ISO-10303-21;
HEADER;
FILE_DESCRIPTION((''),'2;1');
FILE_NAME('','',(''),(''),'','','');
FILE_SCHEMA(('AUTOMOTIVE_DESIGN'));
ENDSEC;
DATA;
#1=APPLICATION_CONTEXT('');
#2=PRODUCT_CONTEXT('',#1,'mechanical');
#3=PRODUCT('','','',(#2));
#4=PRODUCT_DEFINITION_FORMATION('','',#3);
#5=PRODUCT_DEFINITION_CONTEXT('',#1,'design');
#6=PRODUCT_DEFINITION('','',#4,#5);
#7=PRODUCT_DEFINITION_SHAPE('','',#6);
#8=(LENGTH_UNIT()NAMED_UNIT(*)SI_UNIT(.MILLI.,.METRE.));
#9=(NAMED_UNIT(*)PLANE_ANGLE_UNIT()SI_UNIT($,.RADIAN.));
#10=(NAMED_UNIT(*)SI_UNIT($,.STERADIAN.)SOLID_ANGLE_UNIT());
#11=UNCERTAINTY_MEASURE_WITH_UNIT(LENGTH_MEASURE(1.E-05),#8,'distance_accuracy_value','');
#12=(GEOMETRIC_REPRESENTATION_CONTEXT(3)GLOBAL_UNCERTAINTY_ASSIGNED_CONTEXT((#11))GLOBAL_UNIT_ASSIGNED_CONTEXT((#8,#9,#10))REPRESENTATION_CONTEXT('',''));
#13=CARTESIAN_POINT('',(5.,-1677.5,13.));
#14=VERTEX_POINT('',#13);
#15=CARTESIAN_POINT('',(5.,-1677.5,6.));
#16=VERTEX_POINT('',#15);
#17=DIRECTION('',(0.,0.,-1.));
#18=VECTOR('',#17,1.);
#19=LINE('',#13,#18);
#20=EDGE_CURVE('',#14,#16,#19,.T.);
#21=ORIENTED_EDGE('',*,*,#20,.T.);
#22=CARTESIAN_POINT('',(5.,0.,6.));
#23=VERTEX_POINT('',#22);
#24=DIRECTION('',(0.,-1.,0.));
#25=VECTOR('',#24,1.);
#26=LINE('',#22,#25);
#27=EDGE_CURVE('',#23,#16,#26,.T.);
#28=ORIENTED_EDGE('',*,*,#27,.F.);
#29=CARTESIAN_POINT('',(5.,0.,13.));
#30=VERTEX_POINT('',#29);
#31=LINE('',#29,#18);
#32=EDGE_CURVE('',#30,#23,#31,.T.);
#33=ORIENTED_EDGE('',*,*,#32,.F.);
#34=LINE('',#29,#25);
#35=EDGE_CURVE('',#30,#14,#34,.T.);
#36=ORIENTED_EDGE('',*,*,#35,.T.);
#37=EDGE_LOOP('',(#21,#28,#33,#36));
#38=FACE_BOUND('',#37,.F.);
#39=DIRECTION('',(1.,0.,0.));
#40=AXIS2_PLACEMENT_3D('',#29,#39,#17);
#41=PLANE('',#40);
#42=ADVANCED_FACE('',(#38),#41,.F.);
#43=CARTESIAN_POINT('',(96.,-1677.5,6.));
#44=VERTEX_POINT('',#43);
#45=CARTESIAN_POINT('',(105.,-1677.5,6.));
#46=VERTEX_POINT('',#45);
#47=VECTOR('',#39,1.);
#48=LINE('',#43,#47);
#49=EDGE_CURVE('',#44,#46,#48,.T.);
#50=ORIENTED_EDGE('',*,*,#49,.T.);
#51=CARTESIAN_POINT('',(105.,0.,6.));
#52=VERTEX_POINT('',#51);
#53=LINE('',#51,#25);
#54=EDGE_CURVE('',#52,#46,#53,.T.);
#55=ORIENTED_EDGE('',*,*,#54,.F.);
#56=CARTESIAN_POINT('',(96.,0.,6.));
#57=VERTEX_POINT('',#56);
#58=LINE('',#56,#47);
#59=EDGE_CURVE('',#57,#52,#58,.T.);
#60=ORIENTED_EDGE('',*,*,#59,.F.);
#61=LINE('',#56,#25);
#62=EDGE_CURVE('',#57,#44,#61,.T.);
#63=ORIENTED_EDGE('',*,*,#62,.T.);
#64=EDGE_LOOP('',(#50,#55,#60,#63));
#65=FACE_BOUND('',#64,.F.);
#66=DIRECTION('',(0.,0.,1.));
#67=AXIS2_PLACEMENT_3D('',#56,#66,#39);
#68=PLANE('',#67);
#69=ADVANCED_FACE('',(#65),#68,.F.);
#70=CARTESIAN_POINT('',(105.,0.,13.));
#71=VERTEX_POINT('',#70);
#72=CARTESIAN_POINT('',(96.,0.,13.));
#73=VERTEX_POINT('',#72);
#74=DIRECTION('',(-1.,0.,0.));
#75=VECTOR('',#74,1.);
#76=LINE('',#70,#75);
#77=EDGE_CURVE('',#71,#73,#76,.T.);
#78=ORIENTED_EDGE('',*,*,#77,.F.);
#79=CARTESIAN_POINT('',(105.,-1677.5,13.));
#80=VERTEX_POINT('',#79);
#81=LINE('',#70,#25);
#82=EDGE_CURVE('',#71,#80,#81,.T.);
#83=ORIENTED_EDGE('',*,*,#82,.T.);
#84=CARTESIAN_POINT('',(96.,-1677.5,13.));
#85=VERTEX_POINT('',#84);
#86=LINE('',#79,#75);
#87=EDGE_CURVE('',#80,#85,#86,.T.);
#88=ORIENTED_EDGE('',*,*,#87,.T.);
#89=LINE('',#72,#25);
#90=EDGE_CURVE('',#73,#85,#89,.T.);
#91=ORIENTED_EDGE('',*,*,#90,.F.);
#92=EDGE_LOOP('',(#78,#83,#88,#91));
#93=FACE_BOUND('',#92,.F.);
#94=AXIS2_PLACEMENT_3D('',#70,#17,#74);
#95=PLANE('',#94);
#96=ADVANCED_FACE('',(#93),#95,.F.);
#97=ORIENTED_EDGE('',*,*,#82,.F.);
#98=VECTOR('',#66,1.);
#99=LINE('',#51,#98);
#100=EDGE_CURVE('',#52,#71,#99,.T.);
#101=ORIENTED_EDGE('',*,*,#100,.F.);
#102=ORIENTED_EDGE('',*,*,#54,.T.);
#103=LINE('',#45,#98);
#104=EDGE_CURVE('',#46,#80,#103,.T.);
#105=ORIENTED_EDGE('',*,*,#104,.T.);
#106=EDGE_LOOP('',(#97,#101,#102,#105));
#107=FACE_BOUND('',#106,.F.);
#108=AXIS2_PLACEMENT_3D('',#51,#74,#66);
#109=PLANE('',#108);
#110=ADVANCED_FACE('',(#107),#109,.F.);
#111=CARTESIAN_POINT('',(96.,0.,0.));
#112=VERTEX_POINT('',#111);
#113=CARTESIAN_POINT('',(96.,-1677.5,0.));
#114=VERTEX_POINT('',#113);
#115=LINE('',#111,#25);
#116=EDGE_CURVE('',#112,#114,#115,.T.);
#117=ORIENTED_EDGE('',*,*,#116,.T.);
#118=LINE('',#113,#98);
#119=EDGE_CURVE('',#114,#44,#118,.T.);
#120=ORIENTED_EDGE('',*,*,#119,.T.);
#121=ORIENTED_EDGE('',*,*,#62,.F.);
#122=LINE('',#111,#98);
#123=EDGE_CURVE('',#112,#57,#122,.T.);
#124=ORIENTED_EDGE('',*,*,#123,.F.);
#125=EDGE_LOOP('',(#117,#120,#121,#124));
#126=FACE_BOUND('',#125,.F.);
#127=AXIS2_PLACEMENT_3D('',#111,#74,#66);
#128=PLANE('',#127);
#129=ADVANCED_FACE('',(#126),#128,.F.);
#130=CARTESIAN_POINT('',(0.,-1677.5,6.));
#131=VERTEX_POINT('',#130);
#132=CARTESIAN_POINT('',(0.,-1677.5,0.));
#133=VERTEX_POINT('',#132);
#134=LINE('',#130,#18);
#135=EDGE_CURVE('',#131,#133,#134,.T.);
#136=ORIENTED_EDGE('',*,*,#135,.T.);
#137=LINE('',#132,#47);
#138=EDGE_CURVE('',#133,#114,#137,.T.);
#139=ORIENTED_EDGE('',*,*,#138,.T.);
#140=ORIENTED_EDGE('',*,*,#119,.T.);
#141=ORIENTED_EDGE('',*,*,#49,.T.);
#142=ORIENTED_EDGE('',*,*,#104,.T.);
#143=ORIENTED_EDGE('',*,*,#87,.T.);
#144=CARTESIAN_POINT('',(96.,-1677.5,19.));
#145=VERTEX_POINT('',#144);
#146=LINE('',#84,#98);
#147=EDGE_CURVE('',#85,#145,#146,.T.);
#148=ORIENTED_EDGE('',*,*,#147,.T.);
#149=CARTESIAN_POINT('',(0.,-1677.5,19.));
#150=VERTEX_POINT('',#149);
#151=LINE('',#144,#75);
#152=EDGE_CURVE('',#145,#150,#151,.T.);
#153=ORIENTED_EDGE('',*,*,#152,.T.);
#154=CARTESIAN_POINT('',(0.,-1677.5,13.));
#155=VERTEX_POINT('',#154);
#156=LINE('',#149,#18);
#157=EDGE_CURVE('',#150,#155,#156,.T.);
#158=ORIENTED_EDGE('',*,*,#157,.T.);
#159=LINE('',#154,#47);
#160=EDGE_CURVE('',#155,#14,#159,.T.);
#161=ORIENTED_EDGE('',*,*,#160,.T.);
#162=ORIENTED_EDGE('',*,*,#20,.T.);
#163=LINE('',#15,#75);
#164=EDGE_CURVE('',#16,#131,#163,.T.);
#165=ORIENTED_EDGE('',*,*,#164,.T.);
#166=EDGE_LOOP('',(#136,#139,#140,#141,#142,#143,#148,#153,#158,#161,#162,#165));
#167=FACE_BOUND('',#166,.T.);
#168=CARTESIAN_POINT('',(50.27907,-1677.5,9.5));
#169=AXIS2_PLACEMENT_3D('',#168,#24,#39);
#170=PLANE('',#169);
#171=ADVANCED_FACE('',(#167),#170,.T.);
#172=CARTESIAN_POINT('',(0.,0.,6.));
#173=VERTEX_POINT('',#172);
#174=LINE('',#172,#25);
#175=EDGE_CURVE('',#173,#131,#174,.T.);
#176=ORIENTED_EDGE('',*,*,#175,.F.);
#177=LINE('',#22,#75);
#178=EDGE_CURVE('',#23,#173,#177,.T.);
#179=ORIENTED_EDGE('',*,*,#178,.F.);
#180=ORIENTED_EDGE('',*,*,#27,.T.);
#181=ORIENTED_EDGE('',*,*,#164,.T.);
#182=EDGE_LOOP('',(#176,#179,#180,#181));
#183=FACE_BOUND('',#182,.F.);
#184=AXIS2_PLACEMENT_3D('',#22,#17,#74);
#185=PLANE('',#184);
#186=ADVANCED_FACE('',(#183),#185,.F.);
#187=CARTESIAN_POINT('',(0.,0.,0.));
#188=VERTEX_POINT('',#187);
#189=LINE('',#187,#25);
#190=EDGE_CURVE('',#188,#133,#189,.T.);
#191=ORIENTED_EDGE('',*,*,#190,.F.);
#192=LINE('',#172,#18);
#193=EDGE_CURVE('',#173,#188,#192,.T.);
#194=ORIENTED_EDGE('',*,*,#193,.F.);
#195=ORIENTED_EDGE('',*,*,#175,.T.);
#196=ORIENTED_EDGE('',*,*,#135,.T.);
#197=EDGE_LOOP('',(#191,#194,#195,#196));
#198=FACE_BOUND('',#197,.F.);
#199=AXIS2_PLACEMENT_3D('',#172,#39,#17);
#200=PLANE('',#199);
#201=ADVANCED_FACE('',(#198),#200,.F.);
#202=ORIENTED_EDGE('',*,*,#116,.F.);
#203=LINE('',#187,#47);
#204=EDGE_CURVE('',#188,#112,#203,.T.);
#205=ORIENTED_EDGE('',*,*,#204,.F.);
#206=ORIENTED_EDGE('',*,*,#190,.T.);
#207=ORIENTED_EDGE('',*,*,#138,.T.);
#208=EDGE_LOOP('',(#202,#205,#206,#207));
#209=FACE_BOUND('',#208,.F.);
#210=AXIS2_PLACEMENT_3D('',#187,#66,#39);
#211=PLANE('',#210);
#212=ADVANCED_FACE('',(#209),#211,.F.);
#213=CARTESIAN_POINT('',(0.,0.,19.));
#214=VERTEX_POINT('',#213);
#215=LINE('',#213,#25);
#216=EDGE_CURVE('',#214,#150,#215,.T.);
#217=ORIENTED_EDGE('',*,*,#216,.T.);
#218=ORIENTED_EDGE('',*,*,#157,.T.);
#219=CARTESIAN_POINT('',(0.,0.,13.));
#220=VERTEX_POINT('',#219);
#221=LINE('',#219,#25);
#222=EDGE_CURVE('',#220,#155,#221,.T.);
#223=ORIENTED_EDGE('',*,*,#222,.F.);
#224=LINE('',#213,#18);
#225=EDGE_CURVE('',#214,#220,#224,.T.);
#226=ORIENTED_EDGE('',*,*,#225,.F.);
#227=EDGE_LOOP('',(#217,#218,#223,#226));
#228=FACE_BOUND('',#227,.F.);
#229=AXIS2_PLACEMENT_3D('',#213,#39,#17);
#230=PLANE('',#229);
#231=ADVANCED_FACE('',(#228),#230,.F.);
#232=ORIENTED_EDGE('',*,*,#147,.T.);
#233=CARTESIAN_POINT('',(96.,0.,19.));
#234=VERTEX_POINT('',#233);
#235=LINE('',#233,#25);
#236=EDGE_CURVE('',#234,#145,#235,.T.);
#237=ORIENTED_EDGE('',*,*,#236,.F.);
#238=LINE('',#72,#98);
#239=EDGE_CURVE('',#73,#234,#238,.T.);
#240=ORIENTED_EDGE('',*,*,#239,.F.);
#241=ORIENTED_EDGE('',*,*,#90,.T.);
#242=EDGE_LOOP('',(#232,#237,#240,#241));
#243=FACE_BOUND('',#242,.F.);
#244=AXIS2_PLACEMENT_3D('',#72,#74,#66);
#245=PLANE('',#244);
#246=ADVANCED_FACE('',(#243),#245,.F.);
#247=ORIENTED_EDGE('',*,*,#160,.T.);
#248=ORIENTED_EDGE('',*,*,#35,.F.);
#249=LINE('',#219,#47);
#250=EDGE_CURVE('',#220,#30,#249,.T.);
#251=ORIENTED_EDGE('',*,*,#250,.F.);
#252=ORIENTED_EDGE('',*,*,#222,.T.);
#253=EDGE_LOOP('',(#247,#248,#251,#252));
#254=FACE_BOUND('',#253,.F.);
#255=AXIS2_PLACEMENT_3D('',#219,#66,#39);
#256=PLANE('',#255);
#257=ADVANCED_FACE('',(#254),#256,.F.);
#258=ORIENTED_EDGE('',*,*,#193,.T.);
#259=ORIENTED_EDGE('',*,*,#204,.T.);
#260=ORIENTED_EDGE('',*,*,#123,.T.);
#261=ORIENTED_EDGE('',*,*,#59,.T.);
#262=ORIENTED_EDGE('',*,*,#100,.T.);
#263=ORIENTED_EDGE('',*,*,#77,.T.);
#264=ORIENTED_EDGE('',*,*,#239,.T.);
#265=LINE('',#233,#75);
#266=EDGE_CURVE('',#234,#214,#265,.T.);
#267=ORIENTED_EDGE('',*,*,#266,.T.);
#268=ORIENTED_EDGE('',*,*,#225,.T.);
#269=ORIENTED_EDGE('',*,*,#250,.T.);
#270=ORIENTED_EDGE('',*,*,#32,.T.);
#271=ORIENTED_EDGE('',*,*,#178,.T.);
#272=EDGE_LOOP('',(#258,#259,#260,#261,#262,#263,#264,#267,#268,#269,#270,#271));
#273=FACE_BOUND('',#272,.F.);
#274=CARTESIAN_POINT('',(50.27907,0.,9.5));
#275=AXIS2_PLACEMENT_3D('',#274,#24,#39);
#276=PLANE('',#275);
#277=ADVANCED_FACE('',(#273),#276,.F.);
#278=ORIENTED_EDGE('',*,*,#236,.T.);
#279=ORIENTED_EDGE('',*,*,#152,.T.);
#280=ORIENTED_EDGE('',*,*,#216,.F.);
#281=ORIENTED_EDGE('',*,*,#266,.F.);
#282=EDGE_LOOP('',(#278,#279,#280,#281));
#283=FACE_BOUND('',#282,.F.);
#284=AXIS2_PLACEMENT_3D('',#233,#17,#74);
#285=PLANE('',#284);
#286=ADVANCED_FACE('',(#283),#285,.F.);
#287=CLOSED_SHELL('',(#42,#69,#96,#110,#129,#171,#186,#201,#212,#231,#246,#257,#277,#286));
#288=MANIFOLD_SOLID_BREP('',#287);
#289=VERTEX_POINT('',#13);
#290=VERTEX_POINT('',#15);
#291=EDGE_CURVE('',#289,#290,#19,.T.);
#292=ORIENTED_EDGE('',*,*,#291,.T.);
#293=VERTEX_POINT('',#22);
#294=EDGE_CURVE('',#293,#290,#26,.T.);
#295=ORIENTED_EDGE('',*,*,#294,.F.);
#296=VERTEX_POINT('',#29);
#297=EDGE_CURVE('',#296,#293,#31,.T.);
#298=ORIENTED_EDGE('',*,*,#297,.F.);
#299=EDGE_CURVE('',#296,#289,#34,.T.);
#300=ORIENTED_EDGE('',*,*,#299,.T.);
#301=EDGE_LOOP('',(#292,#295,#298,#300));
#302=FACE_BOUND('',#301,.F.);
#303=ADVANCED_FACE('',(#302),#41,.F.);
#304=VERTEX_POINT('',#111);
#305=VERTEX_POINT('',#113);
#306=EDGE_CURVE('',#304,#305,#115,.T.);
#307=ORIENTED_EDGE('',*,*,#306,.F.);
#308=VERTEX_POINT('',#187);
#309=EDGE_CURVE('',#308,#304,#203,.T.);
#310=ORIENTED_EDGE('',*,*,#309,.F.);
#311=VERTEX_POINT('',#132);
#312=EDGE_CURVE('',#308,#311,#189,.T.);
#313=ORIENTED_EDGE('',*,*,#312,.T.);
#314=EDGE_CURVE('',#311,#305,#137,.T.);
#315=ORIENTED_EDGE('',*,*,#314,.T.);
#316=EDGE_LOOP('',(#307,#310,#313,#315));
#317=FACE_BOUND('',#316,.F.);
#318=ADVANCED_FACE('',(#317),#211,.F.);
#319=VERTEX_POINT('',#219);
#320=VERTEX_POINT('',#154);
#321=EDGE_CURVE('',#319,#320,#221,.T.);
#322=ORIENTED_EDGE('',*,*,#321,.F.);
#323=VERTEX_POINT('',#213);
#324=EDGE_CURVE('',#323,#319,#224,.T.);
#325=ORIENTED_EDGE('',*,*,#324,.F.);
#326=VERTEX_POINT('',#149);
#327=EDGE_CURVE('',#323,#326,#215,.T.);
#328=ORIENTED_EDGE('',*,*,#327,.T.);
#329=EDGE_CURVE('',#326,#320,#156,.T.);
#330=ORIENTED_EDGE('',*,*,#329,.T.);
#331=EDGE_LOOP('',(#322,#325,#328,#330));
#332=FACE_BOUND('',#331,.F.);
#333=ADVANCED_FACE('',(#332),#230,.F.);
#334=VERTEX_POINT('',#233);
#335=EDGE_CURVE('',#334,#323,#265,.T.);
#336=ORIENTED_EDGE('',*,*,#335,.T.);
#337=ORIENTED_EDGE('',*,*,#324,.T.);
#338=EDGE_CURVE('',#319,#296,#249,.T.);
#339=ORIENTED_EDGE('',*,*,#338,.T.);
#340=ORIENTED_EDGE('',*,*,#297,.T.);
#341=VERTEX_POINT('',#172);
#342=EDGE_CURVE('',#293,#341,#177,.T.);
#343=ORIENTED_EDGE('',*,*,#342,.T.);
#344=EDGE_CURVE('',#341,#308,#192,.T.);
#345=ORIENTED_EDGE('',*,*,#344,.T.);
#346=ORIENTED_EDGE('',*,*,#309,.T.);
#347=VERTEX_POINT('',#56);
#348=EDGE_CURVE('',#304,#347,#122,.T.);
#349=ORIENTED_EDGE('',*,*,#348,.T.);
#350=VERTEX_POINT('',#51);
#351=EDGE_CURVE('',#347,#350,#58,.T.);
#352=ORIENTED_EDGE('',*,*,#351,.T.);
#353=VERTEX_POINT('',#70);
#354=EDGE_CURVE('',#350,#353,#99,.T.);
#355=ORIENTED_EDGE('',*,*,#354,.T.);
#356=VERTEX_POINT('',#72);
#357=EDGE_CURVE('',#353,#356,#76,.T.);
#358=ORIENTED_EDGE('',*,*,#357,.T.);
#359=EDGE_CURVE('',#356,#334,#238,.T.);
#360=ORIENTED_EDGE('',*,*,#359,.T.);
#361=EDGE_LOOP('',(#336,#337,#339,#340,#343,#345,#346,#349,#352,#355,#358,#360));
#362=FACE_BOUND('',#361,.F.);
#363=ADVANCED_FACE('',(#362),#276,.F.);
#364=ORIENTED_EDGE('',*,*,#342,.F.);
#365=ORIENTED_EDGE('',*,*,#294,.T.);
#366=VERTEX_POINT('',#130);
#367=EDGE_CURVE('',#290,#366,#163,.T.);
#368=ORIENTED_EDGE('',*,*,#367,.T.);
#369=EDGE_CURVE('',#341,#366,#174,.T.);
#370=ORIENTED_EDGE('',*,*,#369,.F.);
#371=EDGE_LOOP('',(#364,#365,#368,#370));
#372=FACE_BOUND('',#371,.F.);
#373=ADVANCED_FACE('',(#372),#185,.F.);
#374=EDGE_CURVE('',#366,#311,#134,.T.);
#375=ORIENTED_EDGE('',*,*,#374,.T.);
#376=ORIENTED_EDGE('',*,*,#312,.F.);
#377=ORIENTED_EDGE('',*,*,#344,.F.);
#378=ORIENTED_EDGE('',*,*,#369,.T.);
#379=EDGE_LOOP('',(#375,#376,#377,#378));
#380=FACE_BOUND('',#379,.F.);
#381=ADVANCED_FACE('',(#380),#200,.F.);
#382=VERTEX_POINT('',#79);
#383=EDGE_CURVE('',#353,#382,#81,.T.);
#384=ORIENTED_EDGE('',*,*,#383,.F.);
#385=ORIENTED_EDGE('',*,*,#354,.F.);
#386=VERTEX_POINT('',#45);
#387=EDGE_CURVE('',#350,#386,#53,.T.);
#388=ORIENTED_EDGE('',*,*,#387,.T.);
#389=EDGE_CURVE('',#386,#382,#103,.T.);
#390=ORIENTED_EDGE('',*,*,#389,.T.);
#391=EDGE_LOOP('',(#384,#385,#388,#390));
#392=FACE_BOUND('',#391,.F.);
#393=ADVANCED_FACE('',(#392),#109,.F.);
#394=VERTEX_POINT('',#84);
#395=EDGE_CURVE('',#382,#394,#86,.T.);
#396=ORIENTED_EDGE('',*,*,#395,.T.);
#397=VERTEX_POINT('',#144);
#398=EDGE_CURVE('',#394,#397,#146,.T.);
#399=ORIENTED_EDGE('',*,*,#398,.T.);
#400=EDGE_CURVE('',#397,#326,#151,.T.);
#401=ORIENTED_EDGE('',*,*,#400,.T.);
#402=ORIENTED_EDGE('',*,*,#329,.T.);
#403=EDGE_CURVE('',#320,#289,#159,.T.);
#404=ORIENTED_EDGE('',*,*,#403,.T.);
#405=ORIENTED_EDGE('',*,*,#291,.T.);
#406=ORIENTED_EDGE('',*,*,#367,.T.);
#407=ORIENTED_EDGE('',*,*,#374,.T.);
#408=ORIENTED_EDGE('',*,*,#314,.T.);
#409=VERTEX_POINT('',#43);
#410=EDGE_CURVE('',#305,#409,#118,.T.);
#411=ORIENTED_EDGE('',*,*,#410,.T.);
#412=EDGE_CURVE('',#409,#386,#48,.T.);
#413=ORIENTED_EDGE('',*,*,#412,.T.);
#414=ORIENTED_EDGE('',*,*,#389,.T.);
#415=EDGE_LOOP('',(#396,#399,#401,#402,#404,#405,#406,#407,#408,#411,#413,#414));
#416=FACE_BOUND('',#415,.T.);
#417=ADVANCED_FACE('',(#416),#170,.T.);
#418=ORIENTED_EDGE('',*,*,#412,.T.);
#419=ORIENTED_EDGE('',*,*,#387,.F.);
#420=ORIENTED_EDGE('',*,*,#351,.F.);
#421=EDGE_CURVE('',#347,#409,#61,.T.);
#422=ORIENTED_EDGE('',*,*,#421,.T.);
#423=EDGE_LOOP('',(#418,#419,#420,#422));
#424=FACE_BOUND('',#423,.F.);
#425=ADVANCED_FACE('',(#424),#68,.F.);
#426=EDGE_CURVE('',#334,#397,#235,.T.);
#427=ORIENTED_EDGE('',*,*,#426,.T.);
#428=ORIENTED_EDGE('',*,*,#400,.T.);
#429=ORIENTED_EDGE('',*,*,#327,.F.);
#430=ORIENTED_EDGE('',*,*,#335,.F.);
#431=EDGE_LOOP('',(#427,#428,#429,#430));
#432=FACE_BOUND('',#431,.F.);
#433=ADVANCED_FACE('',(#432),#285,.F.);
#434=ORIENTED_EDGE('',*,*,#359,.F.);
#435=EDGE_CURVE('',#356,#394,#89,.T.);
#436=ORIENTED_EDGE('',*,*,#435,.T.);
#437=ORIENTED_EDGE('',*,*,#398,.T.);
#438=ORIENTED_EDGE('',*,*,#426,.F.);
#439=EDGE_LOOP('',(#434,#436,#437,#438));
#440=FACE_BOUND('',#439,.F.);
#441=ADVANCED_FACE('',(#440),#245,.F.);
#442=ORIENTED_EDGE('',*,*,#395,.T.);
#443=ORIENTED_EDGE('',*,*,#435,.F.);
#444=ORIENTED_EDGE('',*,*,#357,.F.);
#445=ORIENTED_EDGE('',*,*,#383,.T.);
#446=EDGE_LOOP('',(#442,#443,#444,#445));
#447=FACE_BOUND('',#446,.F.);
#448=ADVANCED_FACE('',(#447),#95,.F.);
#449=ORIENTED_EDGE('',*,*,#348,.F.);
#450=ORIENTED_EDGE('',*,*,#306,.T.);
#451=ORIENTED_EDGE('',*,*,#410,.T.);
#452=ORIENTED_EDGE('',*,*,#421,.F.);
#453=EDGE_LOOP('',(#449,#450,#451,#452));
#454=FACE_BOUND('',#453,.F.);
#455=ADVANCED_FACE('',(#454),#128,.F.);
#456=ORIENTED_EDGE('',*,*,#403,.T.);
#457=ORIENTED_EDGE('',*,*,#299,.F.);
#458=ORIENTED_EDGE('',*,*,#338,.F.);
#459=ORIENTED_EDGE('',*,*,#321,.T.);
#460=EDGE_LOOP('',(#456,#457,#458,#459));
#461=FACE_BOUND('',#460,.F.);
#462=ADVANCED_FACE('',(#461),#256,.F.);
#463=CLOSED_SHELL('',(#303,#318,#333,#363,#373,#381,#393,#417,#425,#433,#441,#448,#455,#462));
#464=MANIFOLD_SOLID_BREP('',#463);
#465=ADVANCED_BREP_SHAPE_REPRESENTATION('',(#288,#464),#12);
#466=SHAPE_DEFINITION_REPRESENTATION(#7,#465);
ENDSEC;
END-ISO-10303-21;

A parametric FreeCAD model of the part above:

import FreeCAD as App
import Part
import Sketcher
from FreeCAD import Vector


def add_polygon(sketch, points):
    """Adds a closed chain of lines whose ends are joined by coincident constraints."""
    first, n = sketch.GeometryCount, len(points)
    for a, b in zip(points, points[1:] + points[:1]):
        sketch.addGeometry(Part.LineSegment(App.Vector(*a, 0), App.Vector(*b, 0)), False)
    for i in range(n):
        sketch.addConstraint(Sketcher.Constraint("Coincident", first + i, 2, first + (i + 1) % n, 1))

doc = App.newDocument("Part")
body = doc.addObject("PartDesign::Body", "Body")

# Sketch on XZ plane
sketch1 = body.newObject("Sketcher::SketchObject", "Sketch")
sketch1.AttachmentSupport = (doc.getObject("XZ_Plane"), [""])
sketch1.MapMode = "FlatFace"
add_polygon(sketch1, [(0, 6), (0, 0), (96, 0), (96, 6), (105, 6), (105, 13), (96, 13), (96, 19), (0, 19), (0, 13), (5, 13), (5, 6)])  # lines 0-11
sketch1.addConstraint(Sketcher.Constraint("Vertical", 0))
sketch1.addConstraint(Sketcher.Constraint("Horizontal", 1))
sketch1.addConstraint(Sketcher.Constraint("Vertical", 2))
sketch1.addConstraint(Sketcher.Constraint("Horizontal", 3))
sketch1.addConstraint(Sketcher.Constraint("Vertical", 4))
sketch1.addConstraint(Sketcher.Constraint("Horizontal", 5))
sketch1.addConstraint(Sketcher.Constraint("Vertical", 6))
sketch1.addConstraint(Sketcher.Constraint("Horizontal", 7))
sketch1.addConstraint(Sketcher.Constraint("Vertical", 8))
sketch1.addConstraint(Sketcher.Constraint("Horizontal", 9))
sketch1.addConstraint(Sketcher.Constraint("Vertical", 10))
sketch1.addConstraint(Sketcher.Constraint("Horizontal", 11))
sketch1.addConstraint(Sketcher.Constraint("Coincident", 0, 2, -1, 1))
sketch1.addConstraint(Sketcher.Constraint("PointOnObject", 7, 2, -2))
sketch1.addConstraint(Sketcher.Constraint("Horizontal", 5, 2, 8, 2))
sketch1.addConstraint(Sketcher.Constraint("Horizontal", 3, 2, 10, 2))
sketch1.addConstraint(Sketcher.Constraint("Vertical", 2, 2, 5, 2))
sketch1.addConstraint(Sketcher.Constraint("Equal", 2, 6))
sketch1.addConstraint(Sketcher.Constraint("DistanceX", 1, 1, 1, 2, 96.0))
sketch1.addConstraint(Sketcher.Constraint("DistanceX", 3, 1, 3, 2, 9.0))
sketch1.addConstraint(Sketcher.Constraint("DistanceX", 9, 1, 9, 2, 5.0))
sketch1.addConstraint(Sketcher.Constraint("DistanceY", 0, 2, 0, 1, 6.0))
sketch1.addConstraint(Sketcher.Constraint("DistanceY", 4, 1, 4, 2, 7.0))
pad1 = body.newObject("PartDesign::Pad", "Pad")
pad1.Profile = sketch1
pad1.Length = 1677.5
body2 = doc.addObject("PartDesign::Body", "Body001")

# Sketch on XZ plane
sketch2 = body2.newObject("Sketcher::SketchObject", "Sketch001")
sketch2.AttachmentSupport = (doc.getObject("XZ_Plane001"), [""])
sketch2.MapMode = "FlatFace"
add_polygon(sketch2, [(0, 6), (0, 0), (96, 0), (96, 6), (105, 6), (105, 13), (96, 13), (96, 19), (0, 19), (0, 13), (5, 13), (5, 6)])  # lines 0-11
sketch2.addConstraint(Sketcher.Constraint("Vertical", 0))
sketch2.addConstraint(Sketcher.Constraint("Horizontal", 1))
sketch2.addConstraint(Sketcher.Constraint("Vertical", 2))
sketch2.addConstraint(Sketcher.Constraint("Horizontal", 3))
sketch2.addConstraint(Sketcher.Constraint("Vertical", 4))
sketch2.addConstraint(Sketcher.Constraint("Horizontal", 5))
sketch2.addConstraint(Sketcher.Constraint("Vertical", 6))
sketch2.addConstraint(Sketcher.Constraint("Horizontal", 7))
sketch2.addConstraint(Sketcher.Constraint("Vertical", 8))
sketch2.addConstraint(Sketcher.Constraint("Horizontal", 9))
sketch2.addConstraint(Sketcher.Constraint("Vertical", 10))
sketch2.addConstraint(Sketcher.Constraint("Horizontal", 11))
sketch2.addConstraint(Sketcher.Constraint("Coincident", 0, 2, -1, 1))
sketch2.addConstraint(Sketcher.Constraint("PointOnObject", 7, 2, -2))
sketch2.addConstraint(Sketcher.Constraint("Horizontal", 5, 2, 8, 2))
sketch2.addConstraint(Sketcher.Constraint("Horizontal", 3, 2, 10, 2))
sketch2.addConstraint(Sketcher.Constraint("Vertical", 2, 2, 5, 2))
sketch2.addConstraint(Sketcher.Constraint("Equal", 2, 6))
sketch2.addConstraint(Sketcher.Constraint("DistanceX", 1, 1, 1, 2, 96.0))
sketch2.addConstraint(Sketcher.Constraint("DistanceX", 3, 1, 3, 2, 9.0))
sketch2.addConstraint(Sketcher.Constraint("DistanceX", 9, 1, 9, 2, 5.0))
sketch2.addConstraint(Sketcher.Constraint("DistanceY", 0, 2, 0, 1, 6.0))
sketch2.addConstraint(Sketcher.Constraint("DistanceY", 4, 1, 4, 2, 7.0))
pad2 = body2.newObject("PartDesign::Pad", "Pad001")
pad2.Profile = sketch2
pad2.Length = 1677.5

doc.recompute()
